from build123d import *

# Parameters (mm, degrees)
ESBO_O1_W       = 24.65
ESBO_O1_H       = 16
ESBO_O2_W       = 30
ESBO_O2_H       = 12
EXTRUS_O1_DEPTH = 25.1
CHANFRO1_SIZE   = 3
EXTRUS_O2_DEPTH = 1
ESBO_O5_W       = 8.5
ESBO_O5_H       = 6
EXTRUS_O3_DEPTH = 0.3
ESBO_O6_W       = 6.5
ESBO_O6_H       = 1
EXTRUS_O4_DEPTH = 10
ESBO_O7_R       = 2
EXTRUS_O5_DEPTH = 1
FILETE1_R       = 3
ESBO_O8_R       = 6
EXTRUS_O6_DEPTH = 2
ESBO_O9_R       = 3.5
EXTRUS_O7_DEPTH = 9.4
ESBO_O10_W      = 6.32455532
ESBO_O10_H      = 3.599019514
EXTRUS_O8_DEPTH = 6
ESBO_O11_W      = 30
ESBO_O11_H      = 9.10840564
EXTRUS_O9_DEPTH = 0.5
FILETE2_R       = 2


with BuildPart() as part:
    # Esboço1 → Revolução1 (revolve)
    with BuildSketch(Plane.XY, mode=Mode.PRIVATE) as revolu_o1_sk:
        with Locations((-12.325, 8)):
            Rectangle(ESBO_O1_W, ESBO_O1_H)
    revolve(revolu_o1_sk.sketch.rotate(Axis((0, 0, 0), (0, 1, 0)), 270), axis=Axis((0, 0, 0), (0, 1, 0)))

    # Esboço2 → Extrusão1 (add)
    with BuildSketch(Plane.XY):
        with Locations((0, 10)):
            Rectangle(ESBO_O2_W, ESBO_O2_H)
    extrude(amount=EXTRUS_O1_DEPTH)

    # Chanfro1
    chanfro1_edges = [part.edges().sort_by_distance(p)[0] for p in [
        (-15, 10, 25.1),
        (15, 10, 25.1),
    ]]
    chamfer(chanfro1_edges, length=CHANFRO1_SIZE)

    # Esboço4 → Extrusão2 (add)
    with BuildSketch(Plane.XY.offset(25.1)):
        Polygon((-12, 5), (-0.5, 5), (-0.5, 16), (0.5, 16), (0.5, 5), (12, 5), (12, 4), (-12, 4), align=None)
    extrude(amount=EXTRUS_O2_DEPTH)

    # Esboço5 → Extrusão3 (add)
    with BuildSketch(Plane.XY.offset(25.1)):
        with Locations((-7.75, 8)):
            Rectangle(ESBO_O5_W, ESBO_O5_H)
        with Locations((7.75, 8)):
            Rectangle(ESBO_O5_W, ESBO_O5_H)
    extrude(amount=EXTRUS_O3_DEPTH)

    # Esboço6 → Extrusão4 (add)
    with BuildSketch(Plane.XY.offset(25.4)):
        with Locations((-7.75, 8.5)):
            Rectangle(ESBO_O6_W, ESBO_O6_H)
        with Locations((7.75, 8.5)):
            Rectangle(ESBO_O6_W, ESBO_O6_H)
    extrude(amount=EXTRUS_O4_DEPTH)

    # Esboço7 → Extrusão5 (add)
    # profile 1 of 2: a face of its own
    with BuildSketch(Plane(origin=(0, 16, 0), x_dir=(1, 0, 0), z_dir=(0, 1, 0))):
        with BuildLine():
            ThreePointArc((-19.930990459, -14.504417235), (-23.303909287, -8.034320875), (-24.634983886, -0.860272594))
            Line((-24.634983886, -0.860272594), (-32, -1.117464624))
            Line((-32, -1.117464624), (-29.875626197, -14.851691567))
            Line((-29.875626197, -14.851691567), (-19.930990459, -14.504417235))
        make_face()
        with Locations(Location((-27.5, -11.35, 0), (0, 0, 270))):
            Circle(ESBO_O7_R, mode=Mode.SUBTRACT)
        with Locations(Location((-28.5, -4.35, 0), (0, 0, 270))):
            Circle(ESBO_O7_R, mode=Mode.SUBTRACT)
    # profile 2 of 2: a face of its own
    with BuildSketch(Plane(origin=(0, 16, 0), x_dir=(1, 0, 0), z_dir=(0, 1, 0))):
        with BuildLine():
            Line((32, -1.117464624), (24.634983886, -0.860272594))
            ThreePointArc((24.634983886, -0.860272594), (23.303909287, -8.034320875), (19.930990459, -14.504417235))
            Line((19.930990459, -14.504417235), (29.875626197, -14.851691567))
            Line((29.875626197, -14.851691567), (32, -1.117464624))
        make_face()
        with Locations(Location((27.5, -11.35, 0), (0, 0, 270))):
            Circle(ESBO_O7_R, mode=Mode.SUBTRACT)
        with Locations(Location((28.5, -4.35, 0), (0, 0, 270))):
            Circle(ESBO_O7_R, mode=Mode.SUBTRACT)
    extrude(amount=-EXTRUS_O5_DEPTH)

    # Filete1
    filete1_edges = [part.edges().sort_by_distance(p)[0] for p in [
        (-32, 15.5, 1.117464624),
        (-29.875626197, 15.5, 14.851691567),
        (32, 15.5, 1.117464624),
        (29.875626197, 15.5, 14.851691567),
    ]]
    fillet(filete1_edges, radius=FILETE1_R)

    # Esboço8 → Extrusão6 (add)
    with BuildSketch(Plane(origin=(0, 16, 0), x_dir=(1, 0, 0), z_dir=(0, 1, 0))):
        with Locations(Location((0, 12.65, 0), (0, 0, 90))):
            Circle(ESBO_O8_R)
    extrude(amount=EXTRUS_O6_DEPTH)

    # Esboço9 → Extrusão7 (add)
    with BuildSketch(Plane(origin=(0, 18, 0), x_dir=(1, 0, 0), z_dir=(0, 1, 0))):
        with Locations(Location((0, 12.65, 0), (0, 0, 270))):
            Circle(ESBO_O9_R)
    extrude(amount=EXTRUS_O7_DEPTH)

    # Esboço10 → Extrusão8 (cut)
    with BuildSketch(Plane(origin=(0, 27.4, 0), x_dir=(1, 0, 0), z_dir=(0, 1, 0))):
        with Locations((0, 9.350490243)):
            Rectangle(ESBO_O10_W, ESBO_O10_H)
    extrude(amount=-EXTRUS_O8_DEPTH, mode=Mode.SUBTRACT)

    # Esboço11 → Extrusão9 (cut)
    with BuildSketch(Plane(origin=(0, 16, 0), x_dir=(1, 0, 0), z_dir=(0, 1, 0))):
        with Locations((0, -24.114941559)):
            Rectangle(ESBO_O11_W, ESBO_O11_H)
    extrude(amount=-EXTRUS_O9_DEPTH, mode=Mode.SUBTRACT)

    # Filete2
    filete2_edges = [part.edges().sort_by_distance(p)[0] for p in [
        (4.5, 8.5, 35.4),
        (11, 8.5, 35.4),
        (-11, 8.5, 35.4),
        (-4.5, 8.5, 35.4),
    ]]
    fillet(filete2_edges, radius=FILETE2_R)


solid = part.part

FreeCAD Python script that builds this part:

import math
import FreeCAD as App
import Part
import Sketcher
from FreeCAD import Vector
Q = App.Units.Quantity


def edges_at(feature, points):
    """Names of the edges that pass closest to the given points."""
    edges = feature.Shape.Edges
    near = lambda p: min(range(len(edges)), key=lambda i: edges[i].distToShape(Part.Vertex(*p))[0])
    return sorted({f"Edge{near(p) + 1}" for p in points})


def add_polygon(sketch, points):
    """Adds a closed chain of lines whose ends are joined by coincident constraints."""
    first, n = sketch.GeometryCount, len(points)
    for a, b in zip(points, points[1:] + points[:1]):
        sketch.addGeometry(Part.LineSegment(App.Vector(*a, 0), App.Vector(*b, 0)), False)
    for i in range(n):
        sketch.addConstraint(Sketcher.Constraint("Coincident", first + i, 2, first + (i + 1) % n, 1))

doc = App.newDocument("Part")
body = doc.addObject("PartDesign::Body", "Body")

# Sketch on XY plane
sketch1 = body.newObject("Sketcher::SketchObject", "Sketch")
sketch1.AttachmentSupport = (doc.getObject("XY_Plane"), [""])
sketch1.MapMode = "FlatFace"
add_polygon(sketch1, [(-25, 16), (-25, 0), (0, 0), (0, 16)])  # lines 0-3
sketch1.addConstraint([
    Sketcher.Constraint("Vertical", 0),
    Sketcher.Constraint("Horizontal", 1),
    Sketcher.Constraint("Vertical", 2),
    Sketcher.Constraint("Horizontal", 3),
    Sketcher.Constraint("Coincident", 1, 2, -1, 1),
    Sketcher.Constraint("DistanceY", 0, 2, 0, 1, Q("16 mm")),
    Sketcher.Constraint("DistanceX", 1, 1, 1, 2, Q("24.65 mm")),
])
revolution = body.newObject("PartDesign::Revolution", "Revolution")
revolution.Profile = sketch1
revolution.ReferenceAxis = (sketch1, ["V_Axis"])
revolution.Angle = 360

# Sketch on XY plane
sketch2 = body.newObject("Sketcher::SketchObject", "Sketch001")
sketch2.AttachmentSupport = (doc.getObject("XY_Plane"), [""])
sketch2.MapMode = "FlatFace"
add_polygon(sketch2, [(-15, 16), (-15, 4), (15, 4), (15, 16)])  # lines 0-3
sketch2.addConstraint([
    Sketcher.Constraint("Vertical", 0),
    Sketcher.Constraint("Horizontal", 1),
    Sketcher.Constraint("Vertical", 2),
    Sketcher.Constraint("Horizontal", 3),
    Sketcher.Constraint("DistanceX", 1, 1, 1, 2, Q("30 mm")),
    Sketcher.Constraint("DistanceY", 0, 2, 0, 1, Q("12 mm")),
    Sketcher.Constraint("DistanceX", 0, 2, -1, 1, Q("15 mm")),
    Sketcher.Constraint("DistanceY", -1, 1, 0, 2, Q("4 mm")),
])
pad1 = body.newObject("PartDesign::Pad", "Pad")
pad1.Profile = sketch2
pad1.Length = 25.1
doc.recompute()

chamfer = body.newObject("PartDesign::Chamfer", "Chamfer")
chamfer.Base = (pad1, edges_at(pad1, [(-15, 10, 25.1), (15, 10, 25.1)]))
chamfer.Size = 3

# Sketch on XY plane
sketch3 = body.newObject("Sketcher::SketchObject", "Sketch002")
sketch3.AttachmentSupport = (doc.getObject("XY_Plane"), [""])
sketch3.MapMode = "FlatFace"
sketch3.AttachmentOffset = App.Placement(Vector(0, 0, 25.1), App.Rotation())
add_polygon(sketch3, [(-0.5, 5), (-12, 5), (-12, 4), (12, 4), (12, 5), (0.5, 5), (0.5, 16), (-0.5, 16)])  # lines 0-7
sketch3.addConstraint([
    Sketcher.Constraint("Horizontal", 0),
    Sketcher.Constraint("Vertical", 1),
    Sketcher.Constraint("Horizontal", 2),
    Sketcher.Constraint("Vertical", 3),
    Sketcher.Constraint("Horizontal", 4),
    Sketcher.Constraint("Vertical", 5),
    Sketcher.Constraint("Horizontal", 6),
    Sketcher.Constraint("Vertical", 7),
    Sketcher.Constraint("Symmetric", 0, 2, 3, 2, -2),
    Sketcher.Constraint("Equal", 0, 4),
    Sketcher.Constraint("Equal", 6, 1),
    Sketcher.Constraint("DistanceX", 2, 1, 2, 2, Q("24 mm")),
    Sketcher.Constraint("DistanceX", 6, 2, 6, 1, Q("1 mm")),
    Sketcher.Constraint("DistanceY", 5, 1, 5, 2, Q("11 mm")),
    Sketcher.Constraint("DistanceY", -1, 1, 0, 2, Q("5 mm")),
])
pad2 = body.newObject("PartDesign::Pad", "Pad001")
pad2.Profile = sketch3
pad2.Length = 1

# Sketch on XY plane
sketch4 = body.newObject("Sketcher::SketchObject", "Sketch003")
sketch4.AttachmentSupport = (doc.getObject("XY_Plane"), [""])
sketch4.MapMode = "FlatFace"
sketch4.AttachmentOffset = App.Placement(Vector(0, 0, 25.1), App.Rotation())
add_polygon(sketch4, [(-12, 11), (-12, 5), (-4, 5), (-4, 11)])  # lines 0-3
add_polygon(sketch4, [(4, 11), (4, 5), (12, 5), (12, 11)])  # lines 4-7
sketch4.addConstraint([
    Sketcher.Constraint("Vertical", 0),
    Sketcher.Constraint("Horizontal", 1),
    Sketcher.Constraint("Vertical", 2),
    Sketcher.Constraint("Horizontal", 3),
    Sketcher.Constraint("Vertical", 4),
    Sketcher.Constraint("Horizontal", 5),
    Sketcher.Constraint("Vertical", 6),
    Sketcher.Constraint("Horizontal", 7),
    Sketcher.Constraint("Symmetric", 1, 2, 4, 2, -2),
    Sketcher.Constraint("Symmetric", 3, 2, 6, 2, -2),
    Sketcher.Constraint("DistanceY", 0, 2, 0, 1, Q("6 mm")),
    Sketcher.Constraint("DistanceX", 1, 1, 1, 2, Q("8.5 mm")),
    Sketcher.Constraint("DistanceX", 0, 2, -1, 1, Q("12 mm")),
    Sketcher.Constraint("DistanceY", -1, 1, 0, 2, Q("5 mm")),
])
pad3 = body.newObject("PartDesign::Pad", "Pad002")
pad3.Profile = sketch4
pad3.Length = 0.3

# Sketch on XY plane
sketch5 = body.newObject("Sketcher::SketchObject", "Sketch004")
sketch5.AttachmentSupport = (doc.getObject("XY_Plane"), [""])
sketch5.MapMode = "FlatFace"
sketch5.AttachmentOffset = App.Placement(Vector(0, 0, 25.4), App.Rotation())
add_polygon(sketch5, [(-11, 9), (-11, 8), (-4.5, 8), (-4.5, 9)])  # lines 0-3
add_polygon(sketch5, [(4.5, 9), (4.5, 8), (11, 8), (11, 9)])  # lines 4-7
sketch5.addConstraint([
    Sketcher.Constraint("Vertical", 0),
    Sketcher.Constraint("Horizontal", 1),
    Sketcher.Constraint("Vertical", 2),
    Sketcher.Constraint("Horizontal", 3),
    Sketcher.Constraint("Vertical", 4),
    Sketcher.Constraint("Horizontal", 5),
    Sketcher.Constraint("Vertical", 6),
    Sketcher.Constraint("Horizontal", 7),
    Sketcher.Constraint("Symmetric", 1, 2, 4, 2, -2),
    Sketcher.Constraint("Symmetric", 3, 2, 6, 2, -2),
    Sketcher.Constraint("DistanceY", 0, 2, 0, 1, Q("1 mm")),
    Sketcher.Constraint("DistanceX", 1, 1, 1, 2, Q("6.5 mm")),
    Sketcher.Constraint("DistanceX", 0, 2, -1, 1, Q("11 mm")),
    Sketcher.Constraint("DistanceY", -1, 1, 0, 2, Q("8 mm")),
])
pad4 = body.newObject("PartDesign::Pad", "Pad003")
pad4.Profile = sketch5
pad4.Length = 10

# Sketch on XZ plane
sketch6 = body.newObject("Sketcher::SketchObject", "Sketch005")
sketch6.AttachmentSupport = (doc.getObject("XZ_Plane"), [""])
sketch6.MapMode = "FlatFace"
sketch6.AttachmentOffset = App.Placement(Vector(0, 0, -16), App.Rotation())
sketch6.addGeometry([
    Part.ArcOfCircle(Part.Circle(Vector(0, 0, 0), Vector(0, 0, 1), 24.7), math.radians(144), math.radians(178)),  # 0
    Part.LineSegment(Vector(-24.6, 0.9, 0), Vector(-32, 1.1, 0)),  # 1
    Part.LineSegment(Vector(-32, 1.1, 0), Vector(-29.9, 14.9, 0)),  # 2
    Part.LineSegment(Vector(-29.9, 14.9, 0), Vector(-19.9, 14.5, 0)),  # 3
    Part.Circle(Vector(-27.5, 11.3, 0), Vector(0, 0, 1), 2),  # 4
    Part.Circle(Vector(-28.5, 4.3, 0), Vector(0, 0, 1), 2),  # 5
    Part.LineSegment(Vector(32, 1.1, 0), Vector(24.6, 0.9, 0)),  # 6
    Part.ArcOfCircle(Part.Circle(Vector(0, 0, 0), Vector(0, 0, 1), 24.7), math.radians(2), math.radians(36)),  # 7
    Part.LineSegment(Vector(19.9, 14.5, 0), Vector(29.9, 14.9, 0)),  # 8
    Part.LineSegment(Vector(29.9, 14.9, 0), Vector(32, 1.1, 0)),  # 9
    Part.Circle(Vector(27.5, 11.3, 0), Vector(0, 0, 1), 2),  # 10
    Part.Circle(Vector(28.5, 4.3, 0), Vector(0, 0, 1), 2),  # 11
], False)
sketch6.addConstraint([
    Sketcher.Constraint("Coincident", 0, 2, 1, 1),
    Sketcher.Constraint("Coincident", 1, 2, 2, 1),
    Sketcher.Constraint("Coincident", 2, 2, 3, 1),
    Sketcher.Constraint("Coincident", 3, 2, 0, 1),
    Sketcher.Constraint("Coincident", 6, 2, 7, 1),
    Sketcher.Constraint("Coincident", 7, 2, 8, 1),
    Sketcher.Constraint("Coincident", 8, 2, 9, 1),
    Sketcher.Constraint("Coincident", 9, 2, 6, 1),
    Sketcher.Constraint("Coincident", 0, 3, -1, 1),
    Sketcher.Constraint("Coincident", 7, 3, -1, 1),
    Sketcher.Constraint("Equal", 4, 5),
    Sketcher.Constraint("Equal", 0, 7),
    Sketcher.Constraint("Equal", 5, 10),
    Sketcher.Constraint("Equal", 10, 11),
    Sketcher.Constraint("Symmetric", 4, 3, 10, 3, -2),
    Sketcher.Constraint("Symmetric", 5, 3, 11, 3, -2),
    Sketcher.Constraint("Symmetric", 2, 2, 8, 2, -2),
    Sketcher.Constraint("Symmetric", 1, 2, 9, 2, -2),
    Sketcher.Constraint("Parallel", 1, 3),
    Sketcher.Constraint("Parallel", 6, 8),
    Sketcher.Constraint("Horizontal", 0, 2, 6, 2),
    Sketcher.Constraint("Diameter", 4, Q("4 mm")),
    Sketcher.Constraint("Angle", 1, Q("178 deg")),
    Sketcher.Constraint("Radius", 0, Q("24.65 mm")),
    Sketcher.Constraint("DistanceX", 1, 2, -1, 1, Q("32 mm")),
    Sketcher.Constraint("DistanceX", 5, 3, 4, 3, Q("1 mm")),
    Sketcher.Constraint("DistanceY", 5, 3, 4, 3, Q("7 mm")),
    Sketcher.Constraint("DistanceX", 4, 3, 10, 3, Q("55 mm")),
    Sketcher.Constraint("DistanceY", -1, 1, 4, 3, Q("11.35 mm")),
    Sketcher.Constraint("DistanceY", -1, 1, 2, 2, Q("14.851692 mm")),
    Sketcher.Constraint("DistanceX", 3, 2, -1, 1, Q("19.93099 mm")),
    Sketcher.Constraint("DistanceY", 0, 2, 2, 2, Q("13.991419 mm")),
])
pad5 = body.newObject("PartDesign::Pad", "Pad004")
pad5.Profile = sketch6
pad5.Length = 1
doc.recompute()

fillet = body.newObject("PartDesign::Fillet", "Fillet")
fillet.Base = (pad5, edges_at(pad5, [
    (-32, 15.5, 1.117),
    (-29.876, 15.5, 14.852),
    (32, 15.5, 1.117),
    (29.876, 15.5, 14.852),
]))
fillet.Radius = 3

# Sketch on XZ plane
sketch7 = body.newObject("Sketcher::SketchObject", "Sketch006")
sketch7.AttachmentSupport = (doc.getObject("XZ_Plane"), [""])
sketch7.MapMode = "FlatFace"
sketch7.AttachmentOffset = App.Placement(Vector(0, 0, -16), App.Rotation())
sketch7.addGeometry(Part.Circle(Vector(0, -13, 0), Vector(0, 0, 1), 6), False)
sketch7.addConstraint([
    Sketcher.Constraint("PointOnObject", 0, 3, -2),
    Sketcher.Constraint("Diameter", 0, Q("12 mm")),
    Sketcher.Constraint("DistanceY", 0, 3, -1, 1, Q("12.65 mm")),
])
pad6 = body.newObject("PartDesign::Pad", "Pad005")
pad6.Profile = sketch7
pad6.Length = 2
pad6.Reversed = True

# Sketch on XZ plane
sketch8 = body.newObject("Sketcher::SketchObject", "Sketch007")
sketch8.AttachmentSupport = (doc.getObject("XZ_Plane"), [""])
sketch8.MapMode = "FlatFace"
sketch8.AttachmentOffset = App.Placement(Vector(0, 0, -18), App.Rotation())
sketch8.addGeometry(Part.Circle(Vector(0, -12.7, 0), Vector(0, 0, 1), 3.5), False)
sketch8.addConstraint([
    Sketcher.Constraint("PointOnObject", 0, 3, -2),
    Sketcher.Constraint("Diameter", 0, Q("7 mm")),
    Sketcher.Constraint("DistanceY", 0, 3, -1, 1, Q("12.65 mm")),
])
pad7 = body.newObject("PartDesign::Pad", "Pad006")
pad7.Profile = sketch8
pad7.Length = 9.4
pad7.Reversed = True

# Sketch on XZ plane
sketch9 = body.newObject("Sketcher::SketchObject", "Sketch008")
sketch9.AttachmentSupport = (doc.getObject("XZ_Plane"), [""])
sketch9.MapMode = "FlatFace"
sketch9.AttachmentOffset = App.Placement(Vector(0, 0, -27.4), App.Rotation())
add_polygon(sketch9, [(-3.2, -11.2), (-3.2, -7.6), (3.2, -7.6), (3.2, -11.2)])  # lines 0-3
sketch9.addConstraint([
    Sketcher.Constraint("Vertical", 0),
    Sketcher.Constraint("Horizontal", 1),
    Sketcher.Constraint("Vertical", 2),
    Sketcher.Constraint("Horizontal", 3),
    Sketcher.Constraint("DistanceY", 2, 2, -1, 1, Q("11.15 mm")),
    Sketcher.Constraint("DistanceY", 0, 1, 0, 2, Q("3.59902 mm")),
    Sketcher.Constraint("DistanceX", 1, 1, 1, 2, Q("6.324555 mm")),
    Sketcher.Constraint("DistanceX", 0, 2, -1, 1, Q("3.162278 mm")),
])
pocket1 = body.newObject("PartDesign::Pocket", "Pocket")
pocket1.Profile = sketch9
pocket1.Length = 6
pocket1.Reversed = True

# Sketch on XZ plane
sketch10 = body.newObject("Sketcher::SketchObject", "Sketch009")
sketch10.AttachmentSupport = (doc.getObject("XZ_Plane"), [""])
sketch10.MapMode = "FlatFace"
sketch10.AttachmentOffset = App.Placement(Vector(0, 0, -16), App.Rotation())
add_polygon(sketch10, [(-15, 20), (-15, 29), (15, 29), (15, 20)])  # lines 0-3
sketch10.addConstraint([
    Sketcher.Constraint("Vertical", 0),
    Sketcher.Constraint("Horizontal", 1),
    Sketcher.Constraint("Vertical", 2),
    Sketcher.Constraint("Horizontal", 3),
    Sketcher.Constraint("DistanceX", 1, 1, 1, 2, Q("30 mm")),
    Sketcher.Constraint("DistanceX", 0, 2, -1, 1, Q("15 mm")),
    Sketcher.Constraint("DistanceY", 0, 1, 0, 2, Q("9.108406 mm")),
    Sketcher.Constraint("DistanceY", -1, 1, 2, 2, Q("19.560739 mm")),
])
pocket2 = body.newObject("PartDesign::Pocket", "Pocket001")
pocket2.Profile = sketch10
pocket2.Length = 0.5
pocket2.Reversed = True
doc.recompute()

fillet2 = body.newObject("PartDesign::Fillet", "Fillet001")
fillet2.Base = (pocket2, edges_at(pocket2, [
    (4.5, 8.5, 35.4),
    (11, 8.5, 35.4),
    (-11, 8.5, 35.4),
    (-4.5, 8.5, 35.4),
]))
fillet2.Radius = 2

doc.recompute()
